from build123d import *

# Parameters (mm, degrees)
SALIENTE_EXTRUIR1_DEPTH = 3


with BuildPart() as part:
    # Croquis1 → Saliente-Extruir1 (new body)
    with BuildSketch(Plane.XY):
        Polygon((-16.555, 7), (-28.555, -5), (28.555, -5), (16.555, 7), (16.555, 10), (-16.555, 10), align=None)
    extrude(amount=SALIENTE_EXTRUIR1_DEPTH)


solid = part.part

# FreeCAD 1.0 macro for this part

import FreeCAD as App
import Part
import Sketcher
Q = App.Units.Quantity


def add_polygon(sketch, points):
    """Adds a closed chain of lines whose ends are joined by coincident constraints."""
    first, n = sketch.GeometryCount, len(points)
    for a, b in zip(points, points[1:] + points[:1]):
        sketch.addGeometry(Part.LineSegment(App.Vector(*a, 0), App.Vector(*b, 0)), False)
    for i in range(n):
        sketch.addConstraint(Sketcher.Constraint("Coincident", first + i, 2, first + (i + 1) % n, 1))

doc = App.newDocument("Part")
body = doc.addObject("PartDesign::Body", "Body")

sketch1 = body.newObject("Sketcher::SketchObject", "Sketch")
sketch1.AttachmentSupport = (doc.getObject("XY_Plane"), [""])
sketch1.MapMode = "FlatFace"
add_polygon(sketch1, [(-16.6, 7), (-28.6, -5), (28.6, -5), (16.6, 7), (16.6, 10), (-16.6, 10)])
sketch1.addConstraint([
    Sketcher.Constraint("Horizontal", 1),
    Sketcher.Constraint("Vertical", 3),
    Sketcher.Constraint("Horizontal", 4),
    Sketcher.Constraint("Vertical", 5),
    Sketcher.Constraint("Symmetric", 2, 2, 5, 2, -2),
    Sketcher.Constraint("Perpendicular", 0, 2),
    Sketcher.Constraint("Equal", 0, 2),
    Sketcher.Constraint("DistanceY", 3, 1, 3, 2, Q("3 mm")),
    Sketcher.Constraint("DistanceY", 0, 2, -1, 1, Q("5 mm")),
    Sketcher.Constraint("DistanceY", -1, 1, 2, 2, Q("7 mm")),
    Sketcher.Constraint("DistanceX", 1, 1, 1, 2, Q("57.11 mm")),
])
pad1 = body.newObject("PartDesign::Pad", "Pad")
pad1.Profile = sketch1
pad1.Length = 3

doc.recompute()
